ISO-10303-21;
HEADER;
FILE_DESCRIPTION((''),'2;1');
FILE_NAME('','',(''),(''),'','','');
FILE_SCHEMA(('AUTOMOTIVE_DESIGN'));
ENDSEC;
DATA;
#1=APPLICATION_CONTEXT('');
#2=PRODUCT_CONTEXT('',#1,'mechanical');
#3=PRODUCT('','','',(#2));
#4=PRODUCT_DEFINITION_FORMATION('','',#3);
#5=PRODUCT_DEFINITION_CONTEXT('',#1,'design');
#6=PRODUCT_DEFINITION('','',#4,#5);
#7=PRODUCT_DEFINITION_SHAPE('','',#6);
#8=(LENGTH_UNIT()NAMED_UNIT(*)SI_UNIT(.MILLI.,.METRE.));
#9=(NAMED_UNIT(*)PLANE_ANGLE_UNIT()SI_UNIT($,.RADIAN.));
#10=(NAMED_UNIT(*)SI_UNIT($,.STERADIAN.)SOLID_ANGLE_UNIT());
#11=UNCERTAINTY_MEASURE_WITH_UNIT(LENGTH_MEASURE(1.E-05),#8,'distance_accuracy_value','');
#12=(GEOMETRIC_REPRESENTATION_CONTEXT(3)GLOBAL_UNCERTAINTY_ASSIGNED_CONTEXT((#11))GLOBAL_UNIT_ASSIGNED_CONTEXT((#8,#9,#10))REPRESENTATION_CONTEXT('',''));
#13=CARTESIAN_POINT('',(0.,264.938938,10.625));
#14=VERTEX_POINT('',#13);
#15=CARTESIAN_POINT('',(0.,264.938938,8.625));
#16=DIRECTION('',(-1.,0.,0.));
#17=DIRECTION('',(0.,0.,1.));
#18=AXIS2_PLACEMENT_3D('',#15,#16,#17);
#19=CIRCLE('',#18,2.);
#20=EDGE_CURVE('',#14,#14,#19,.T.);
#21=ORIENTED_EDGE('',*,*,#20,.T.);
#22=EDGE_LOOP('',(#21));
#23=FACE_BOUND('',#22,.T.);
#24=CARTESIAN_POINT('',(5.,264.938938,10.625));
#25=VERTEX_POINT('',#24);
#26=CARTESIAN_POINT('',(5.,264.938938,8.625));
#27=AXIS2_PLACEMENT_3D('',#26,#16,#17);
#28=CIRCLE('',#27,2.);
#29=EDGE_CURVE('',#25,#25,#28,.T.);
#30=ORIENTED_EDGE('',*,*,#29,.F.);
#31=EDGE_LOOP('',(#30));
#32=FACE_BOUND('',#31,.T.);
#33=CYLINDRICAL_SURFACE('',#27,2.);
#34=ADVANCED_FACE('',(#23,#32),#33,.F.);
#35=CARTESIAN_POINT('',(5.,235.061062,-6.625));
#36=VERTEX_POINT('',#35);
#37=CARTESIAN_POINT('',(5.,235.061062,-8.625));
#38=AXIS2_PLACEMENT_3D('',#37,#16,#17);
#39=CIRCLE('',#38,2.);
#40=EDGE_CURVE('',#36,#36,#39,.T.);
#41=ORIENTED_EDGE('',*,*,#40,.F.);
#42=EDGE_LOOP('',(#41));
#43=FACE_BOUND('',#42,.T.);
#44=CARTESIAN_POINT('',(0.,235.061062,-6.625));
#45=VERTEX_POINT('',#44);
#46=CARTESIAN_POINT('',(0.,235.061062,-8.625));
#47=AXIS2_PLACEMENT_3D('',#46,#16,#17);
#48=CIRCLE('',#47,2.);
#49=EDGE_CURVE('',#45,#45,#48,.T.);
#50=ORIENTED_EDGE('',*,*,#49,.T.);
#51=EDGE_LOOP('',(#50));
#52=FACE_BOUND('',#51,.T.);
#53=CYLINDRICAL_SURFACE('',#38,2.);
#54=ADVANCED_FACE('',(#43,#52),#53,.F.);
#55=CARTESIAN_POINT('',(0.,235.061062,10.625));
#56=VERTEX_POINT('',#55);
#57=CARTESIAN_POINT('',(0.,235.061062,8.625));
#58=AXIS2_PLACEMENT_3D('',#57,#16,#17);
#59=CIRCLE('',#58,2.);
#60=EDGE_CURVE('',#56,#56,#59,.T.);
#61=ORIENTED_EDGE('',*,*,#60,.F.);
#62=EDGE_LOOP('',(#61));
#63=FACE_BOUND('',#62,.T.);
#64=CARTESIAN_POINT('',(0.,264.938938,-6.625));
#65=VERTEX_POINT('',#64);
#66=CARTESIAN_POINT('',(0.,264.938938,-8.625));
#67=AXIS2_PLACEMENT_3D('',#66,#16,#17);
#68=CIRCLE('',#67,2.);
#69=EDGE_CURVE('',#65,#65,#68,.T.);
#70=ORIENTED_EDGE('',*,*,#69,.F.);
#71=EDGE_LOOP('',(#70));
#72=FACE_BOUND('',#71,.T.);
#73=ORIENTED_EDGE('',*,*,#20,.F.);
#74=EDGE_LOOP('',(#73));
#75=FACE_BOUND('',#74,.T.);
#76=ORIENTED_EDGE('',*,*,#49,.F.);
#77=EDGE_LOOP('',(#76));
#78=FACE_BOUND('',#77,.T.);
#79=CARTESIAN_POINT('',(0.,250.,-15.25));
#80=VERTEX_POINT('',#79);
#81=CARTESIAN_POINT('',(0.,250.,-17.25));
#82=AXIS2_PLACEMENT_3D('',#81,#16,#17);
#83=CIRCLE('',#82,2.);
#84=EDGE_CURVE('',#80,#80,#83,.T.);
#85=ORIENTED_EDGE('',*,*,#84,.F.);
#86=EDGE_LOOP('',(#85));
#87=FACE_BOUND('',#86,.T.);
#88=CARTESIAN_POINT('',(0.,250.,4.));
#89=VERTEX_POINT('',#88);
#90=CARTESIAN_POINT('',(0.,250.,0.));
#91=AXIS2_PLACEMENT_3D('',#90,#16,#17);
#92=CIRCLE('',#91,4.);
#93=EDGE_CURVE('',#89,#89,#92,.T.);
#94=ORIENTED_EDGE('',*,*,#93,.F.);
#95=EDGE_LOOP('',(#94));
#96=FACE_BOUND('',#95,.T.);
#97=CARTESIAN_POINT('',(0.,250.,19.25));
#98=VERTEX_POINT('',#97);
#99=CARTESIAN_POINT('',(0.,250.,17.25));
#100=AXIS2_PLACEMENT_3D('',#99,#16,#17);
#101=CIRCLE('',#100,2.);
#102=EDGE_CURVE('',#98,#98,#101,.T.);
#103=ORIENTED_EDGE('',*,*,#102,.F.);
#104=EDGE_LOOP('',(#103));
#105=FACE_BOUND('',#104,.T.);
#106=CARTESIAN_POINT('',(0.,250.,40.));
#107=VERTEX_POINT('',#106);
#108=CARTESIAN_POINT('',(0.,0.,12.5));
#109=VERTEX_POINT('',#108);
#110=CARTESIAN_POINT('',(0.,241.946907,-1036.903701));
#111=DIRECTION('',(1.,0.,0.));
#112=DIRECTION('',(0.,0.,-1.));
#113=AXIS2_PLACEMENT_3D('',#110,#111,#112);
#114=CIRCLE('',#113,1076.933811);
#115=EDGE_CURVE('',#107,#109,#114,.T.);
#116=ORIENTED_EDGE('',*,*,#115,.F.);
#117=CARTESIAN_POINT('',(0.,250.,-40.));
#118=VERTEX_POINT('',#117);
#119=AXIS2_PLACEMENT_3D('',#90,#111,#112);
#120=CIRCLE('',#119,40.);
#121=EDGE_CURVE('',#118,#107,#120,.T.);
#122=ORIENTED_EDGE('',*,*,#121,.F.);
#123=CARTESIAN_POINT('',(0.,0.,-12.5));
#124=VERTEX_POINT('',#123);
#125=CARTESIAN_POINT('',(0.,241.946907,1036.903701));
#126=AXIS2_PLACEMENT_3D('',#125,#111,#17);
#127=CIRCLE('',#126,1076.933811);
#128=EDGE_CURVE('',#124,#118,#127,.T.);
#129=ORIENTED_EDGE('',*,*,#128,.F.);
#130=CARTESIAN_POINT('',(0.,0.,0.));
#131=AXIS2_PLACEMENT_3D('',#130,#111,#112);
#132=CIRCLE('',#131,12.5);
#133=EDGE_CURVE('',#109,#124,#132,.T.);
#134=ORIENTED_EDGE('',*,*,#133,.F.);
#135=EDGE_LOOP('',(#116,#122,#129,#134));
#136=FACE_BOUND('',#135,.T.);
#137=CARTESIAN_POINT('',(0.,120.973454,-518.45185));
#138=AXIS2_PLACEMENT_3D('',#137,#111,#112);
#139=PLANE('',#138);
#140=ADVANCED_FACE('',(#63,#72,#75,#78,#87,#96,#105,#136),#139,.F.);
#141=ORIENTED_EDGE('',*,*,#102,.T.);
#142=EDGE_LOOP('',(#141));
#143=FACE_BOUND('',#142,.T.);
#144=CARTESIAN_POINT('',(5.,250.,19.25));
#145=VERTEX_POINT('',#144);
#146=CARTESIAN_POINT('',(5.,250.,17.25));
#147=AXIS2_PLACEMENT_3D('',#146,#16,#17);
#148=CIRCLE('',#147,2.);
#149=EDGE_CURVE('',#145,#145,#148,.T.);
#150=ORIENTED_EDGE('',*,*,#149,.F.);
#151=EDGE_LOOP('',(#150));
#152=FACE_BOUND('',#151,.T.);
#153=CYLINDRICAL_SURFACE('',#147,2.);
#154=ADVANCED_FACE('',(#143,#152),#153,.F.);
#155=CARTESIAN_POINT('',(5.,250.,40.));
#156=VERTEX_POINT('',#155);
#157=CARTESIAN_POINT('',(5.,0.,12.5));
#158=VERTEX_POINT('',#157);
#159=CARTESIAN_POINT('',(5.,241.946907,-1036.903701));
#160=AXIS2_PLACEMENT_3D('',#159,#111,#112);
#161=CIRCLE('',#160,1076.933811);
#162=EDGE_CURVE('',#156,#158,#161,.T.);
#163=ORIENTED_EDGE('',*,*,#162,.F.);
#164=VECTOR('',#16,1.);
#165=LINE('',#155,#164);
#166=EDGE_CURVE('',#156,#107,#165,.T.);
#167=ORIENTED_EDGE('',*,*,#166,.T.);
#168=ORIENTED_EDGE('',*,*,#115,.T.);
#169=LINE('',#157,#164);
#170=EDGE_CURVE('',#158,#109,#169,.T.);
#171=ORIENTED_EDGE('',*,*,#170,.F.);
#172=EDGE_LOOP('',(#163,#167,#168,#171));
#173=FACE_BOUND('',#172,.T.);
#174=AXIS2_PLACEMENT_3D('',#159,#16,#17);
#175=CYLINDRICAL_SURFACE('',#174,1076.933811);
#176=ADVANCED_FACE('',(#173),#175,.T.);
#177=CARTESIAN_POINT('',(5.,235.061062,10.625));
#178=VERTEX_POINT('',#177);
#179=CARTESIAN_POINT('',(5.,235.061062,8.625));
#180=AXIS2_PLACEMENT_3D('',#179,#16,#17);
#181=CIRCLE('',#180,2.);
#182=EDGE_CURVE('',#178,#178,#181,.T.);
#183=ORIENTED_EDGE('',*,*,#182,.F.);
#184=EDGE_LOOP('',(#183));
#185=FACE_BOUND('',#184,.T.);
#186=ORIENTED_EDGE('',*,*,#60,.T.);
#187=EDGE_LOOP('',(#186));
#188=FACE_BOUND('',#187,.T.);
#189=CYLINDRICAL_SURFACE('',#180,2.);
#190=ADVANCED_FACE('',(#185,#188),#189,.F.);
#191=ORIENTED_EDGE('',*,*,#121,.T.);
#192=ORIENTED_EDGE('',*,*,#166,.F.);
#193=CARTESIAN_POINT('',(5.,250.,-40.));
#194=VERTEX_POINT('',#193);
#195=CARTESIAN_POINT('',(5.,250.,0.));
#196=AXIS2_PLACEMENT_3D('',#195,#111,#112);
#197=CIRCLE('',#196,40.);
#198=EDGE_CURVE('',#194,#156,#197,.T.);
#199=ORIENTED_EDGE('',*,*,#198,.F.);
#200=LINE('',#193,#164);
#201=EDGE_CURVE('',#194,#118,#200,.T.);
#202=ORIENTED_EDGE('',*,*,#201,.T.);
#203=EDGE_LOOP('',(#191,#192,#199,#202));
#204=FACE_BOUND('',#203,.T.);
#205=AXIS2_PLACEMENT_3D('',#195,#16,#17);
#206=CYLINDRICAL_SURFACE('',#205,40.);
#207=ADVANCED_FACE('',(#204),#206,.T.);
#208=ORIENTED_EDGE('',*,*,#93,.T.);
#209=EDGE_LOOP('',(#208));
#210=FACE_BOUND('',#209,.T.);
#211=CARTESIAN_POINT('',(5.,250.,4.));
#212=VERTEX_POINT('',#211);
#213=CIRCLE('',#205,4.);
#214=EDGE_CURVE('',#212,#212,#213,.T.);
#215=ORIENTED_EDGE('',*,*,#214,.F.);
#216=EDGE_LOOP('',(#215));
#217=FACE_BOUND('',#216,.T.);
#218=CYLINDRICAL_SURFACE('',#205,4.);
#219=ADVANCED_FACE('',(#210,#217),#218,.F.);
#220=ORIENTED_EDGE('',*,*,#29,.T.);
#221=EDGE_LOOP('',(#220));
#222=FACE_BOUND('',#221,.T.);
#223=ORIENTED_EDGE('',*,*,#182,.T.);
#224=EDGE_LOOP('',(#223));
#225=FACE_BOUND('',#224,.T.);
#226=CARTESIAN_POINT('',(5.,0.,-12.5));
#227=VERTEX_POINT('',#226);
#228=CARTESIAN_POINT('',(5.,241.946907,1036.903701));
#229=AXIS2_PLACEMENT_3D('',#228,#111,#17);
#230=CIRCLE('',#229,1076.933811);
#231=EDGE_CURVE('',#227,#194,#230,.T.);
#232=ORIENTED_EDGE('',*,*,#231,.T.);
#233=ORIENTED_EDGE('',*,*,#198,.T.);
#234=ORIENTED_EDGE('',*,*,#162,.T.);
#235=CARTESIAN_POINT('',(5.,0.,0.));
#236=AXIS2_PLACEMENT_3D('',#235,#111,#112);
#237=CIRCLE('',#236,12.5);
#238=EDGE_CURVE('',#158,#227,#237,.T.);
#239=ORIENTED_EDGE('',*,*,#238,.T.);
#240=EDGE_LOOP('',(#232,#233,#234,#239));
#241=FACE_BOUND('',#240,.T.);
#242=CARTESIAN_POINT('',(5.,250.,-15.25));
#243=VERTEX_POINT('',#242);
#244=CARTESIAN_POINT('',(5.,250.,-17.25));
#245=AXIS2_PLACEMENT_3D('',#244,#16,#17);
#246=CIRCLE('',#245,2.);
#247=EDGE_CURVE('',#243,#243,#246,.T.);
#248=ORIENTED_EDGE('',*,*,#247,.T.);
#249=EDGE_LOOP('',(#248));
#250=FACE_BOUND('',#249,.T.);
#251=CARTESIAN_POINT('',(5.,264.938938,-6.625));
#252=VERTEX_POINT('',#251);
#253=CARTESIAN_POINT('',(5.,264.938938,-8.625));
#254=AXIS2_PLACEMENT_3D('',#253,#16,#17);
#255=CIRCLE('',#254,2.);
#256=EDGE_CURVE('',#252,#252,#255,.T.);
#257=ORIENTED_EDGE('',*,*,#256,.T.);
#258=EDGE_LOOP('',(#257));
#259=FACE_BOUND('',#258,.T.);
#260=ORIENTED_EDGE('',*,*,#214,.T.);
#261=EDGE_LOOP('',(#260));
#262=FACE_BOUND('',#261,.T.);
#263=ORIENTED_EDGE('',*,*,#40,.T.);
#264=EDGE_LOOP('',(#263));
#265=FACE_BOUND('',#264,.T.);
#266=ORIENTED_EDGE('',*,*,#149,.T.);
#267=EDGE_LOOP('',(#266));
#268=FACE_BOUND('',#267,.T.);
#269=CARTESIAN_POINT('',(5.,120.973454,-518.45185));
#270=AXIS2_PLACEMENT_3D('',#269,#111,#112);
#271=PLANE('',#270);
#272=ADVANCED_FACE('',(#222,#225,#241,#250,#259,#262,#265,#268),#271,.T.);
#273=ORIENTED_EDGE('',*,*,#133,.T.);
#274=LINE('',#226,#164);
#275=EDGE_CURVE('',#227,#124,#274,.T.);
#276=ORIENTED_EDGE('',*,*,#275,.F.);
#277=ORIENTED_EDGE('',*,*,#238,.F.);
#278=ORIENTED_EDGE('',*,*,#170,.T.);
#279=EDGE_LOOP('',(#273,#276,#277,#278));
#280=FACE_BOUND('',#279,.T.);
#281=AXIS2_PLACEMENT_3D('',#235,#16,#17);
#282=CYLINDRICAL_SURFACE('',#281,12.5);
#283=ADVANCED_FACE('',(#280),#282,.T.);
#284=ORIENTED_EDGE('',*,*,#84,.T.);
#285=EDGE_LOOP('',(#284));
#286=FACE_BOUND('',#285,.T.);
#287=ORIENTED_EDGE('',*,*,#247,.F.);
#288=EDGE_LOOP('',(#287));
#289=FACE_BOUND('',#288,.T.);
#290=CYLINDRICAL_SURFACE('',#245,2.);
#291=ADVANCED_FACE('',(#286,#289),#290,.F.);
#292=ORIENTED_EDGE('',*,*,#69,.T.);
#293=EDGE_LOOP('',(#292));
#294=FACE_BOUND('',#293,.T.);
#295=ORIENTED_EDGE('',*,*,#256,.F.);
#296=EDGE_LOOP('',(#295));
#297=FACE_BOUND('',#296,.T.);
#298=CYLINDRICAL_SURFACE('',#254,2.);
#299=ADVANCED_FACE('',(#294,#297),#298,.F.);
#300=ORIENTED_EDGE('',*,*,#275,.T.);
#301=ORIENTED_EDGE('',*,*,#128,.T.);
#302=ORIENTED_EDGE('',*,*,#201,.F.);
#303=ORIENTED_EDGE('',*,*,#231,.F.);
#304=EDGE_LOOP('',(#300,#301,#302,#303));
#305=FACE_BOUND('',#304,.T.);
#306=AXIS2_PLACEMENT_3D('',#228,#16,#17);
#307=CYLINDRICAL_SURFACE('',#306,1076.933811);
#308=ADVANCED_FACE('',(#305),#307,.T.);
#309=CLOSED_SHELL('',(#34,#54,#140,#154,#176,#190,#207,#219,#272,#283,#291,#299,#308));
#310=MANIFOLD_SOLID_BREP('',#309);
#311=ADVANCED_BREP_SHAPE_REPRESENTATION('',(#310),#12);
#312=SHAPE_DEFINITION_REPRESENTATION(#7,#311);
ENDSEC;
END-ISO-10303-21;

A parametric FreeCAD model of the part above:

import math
import FreeCAD as App
import Part
import Sketcher

V = App.Vector

doc = App.newDocument("Part")
body = doc.addObject("PartDesign::Body", "Body")

# Sketch on YZ plane
sketch1 = doc.addObject("Sketcher::SketchObject", "Sketch")
body.addObject(sketch1)
sketch1.AttachmentSupport = (doc.YZ_Plane, [""])
sketch1.MapMode = "FlatFace"
sketch1.addGeometry([
    Part.ArcOfCircle(Part.Circle(V(0, 0, 0), V(0, 0, 1), 12.5), math.radians(90), math.radians(270)),
    Part.ArcOfCircle(Part.Circle(V(241.946907, 1036.903701, 0), V(0, 0, 1), 1076.933811), math.radians(-102.983047), math.radians(-89.57155)),
    Part.ArcOfCircle(Part.Circle(V(250, 0, 0), V(0, 0, 1), 40), math.radians(-90), math.radians(90)),
    Part.ArcOfCircle(Part.Circle(V(241.946907, -1036.903701, 0), V(0, 0, 1), 1076.933811), math.radians(89.57155), math.radians(102.983047)),
], False)
sketch1.addConstraint([
    Sketcher.Constraint("Coincident", 0, 2, 1, 1),
    Sketcher.Constraint("Coincident", 1, 2, 2, 1),
    Sketcher.Constraint("Coincident", 2, 2, 3, 1),
    Sketcher.Constraint("Coincident", 3, 2, 0, 1),
    Sketcher.Constraint("Coincident", 0, 3, -1, 1),
    Sketcher.Constraint("Equal", 1, 3),
    Sketcher.Constraint("Symmetric", 1, 3, 3, 3, -1),
    Sketcher.Constraint("PointOnObject", 2, 3, -1),
    Sketcher.Constraint("PointOnObject", 0, 2, -2),
    Sketcher.Constraint("Vertical", 2, 3, 1, 2),
    Sketcher.Constraint("Radius", 2, 40.0),
    Sketcher.Constraint("Radius", 0, 12.5),
    Sketcher.Constraint("DistanceX", -1, 1, 2, 3, 250.0),
    Sketcher.Constraint("Radius", 1, 1076.933811),
])
pad1 = doc.addObject("PartDesign::Pad", "Pad")
body.addObject(pad1)
pad1.Profile = sketch1
pad1.Length = 5

# Sketch on YZ plane
sketch2 = doc.addObject("Sketcher::SketchObject", "Sketch001")
body.addObject(sketch2)
sketch2.AttachmentSupport = (doc.YZ_Plane, [""])
sketch2.MapMode = "FlatFace"
sketch2.addGeometry([
    Part.Circle(V(250, 17.25, 0), V(0, 0, 1), 2),  # 0
    Part.Circle(V(235.061062, 8.625, 0), V(0, 0, 1), 2),  # 1
    Part.Circle(V(235.061062, -8.625, 0), V(0, 0, 1), 2),  # 2
    Part.Circle(V(250, -17.25, 0), V(0, 0, 1), 2),  # 3
    Part.Circle(V(264.938938, -8.625, 0), V(0, 0, 1), 2),  # 4
    Part.Circle(V(264.938938, 8.625, 0), V(0, 0, 1), 2),  # 5
    Part.Circle(V(250, 0, 0), V(0, 0, 1), 4),  # 6
], False)
sketch2.addConstraint([
    Sketcher.Constraint("Equal", 0, 1),
    Sketcher.Constraint("Equal", 1, 2),
    Sketcher.Constraint("Equal", 2, 3),
    Sketcher.Constraint("Equal", 3, 4),
    Sketcher.Constraint("Equal", 4, 5),
    Sketcher.Constraint("Symmetric", 1, 3, 2, 3, -1),
    Sketcher.Constraint("Symmetric", 0, 3, 3, 3, -1),
    Sketcher.Constraint("Symmetric", 4, 3, 5, 3, -1),
    Sketcher.Constraint("PointOnObject", 6, 3, -1),
    Sketcher.Constraint("Horizontal", 2, 3, 4, 3),
    Sketcher.Constraint("Vertical", 3, 3, 6, 3),
    Sketcher.Constraint("Diameter", 0, 4.0),
    Sketcher.Constraint("Diameter", 6, 8.0),
    Sketcher.Constraint("DistanceX", -1, 1, 0, 3, 250.0),
    Sketcher.Constraint("DistanceY", 3, 3, 0, 3, 34.5),
    Sketcher.Constraint("DistanceY", 2, 3, 1, 3, 17.25),
    Sketcher.Constraint("DistanceX", -1, 1, 1, 3, 235.061062),
    Sketcher.Constraint("DistanceX", -1, 1, 4, 3, 264.938938),
])
pocket1 = doc.addObject("PartDesign::Pocket", "Pocket")
body.addObject(pocket1)
pocket1.Profile = sketch2
pocket1.Type = "ThroughAll"
pocket1.Reversed = True

doc.recompute()
